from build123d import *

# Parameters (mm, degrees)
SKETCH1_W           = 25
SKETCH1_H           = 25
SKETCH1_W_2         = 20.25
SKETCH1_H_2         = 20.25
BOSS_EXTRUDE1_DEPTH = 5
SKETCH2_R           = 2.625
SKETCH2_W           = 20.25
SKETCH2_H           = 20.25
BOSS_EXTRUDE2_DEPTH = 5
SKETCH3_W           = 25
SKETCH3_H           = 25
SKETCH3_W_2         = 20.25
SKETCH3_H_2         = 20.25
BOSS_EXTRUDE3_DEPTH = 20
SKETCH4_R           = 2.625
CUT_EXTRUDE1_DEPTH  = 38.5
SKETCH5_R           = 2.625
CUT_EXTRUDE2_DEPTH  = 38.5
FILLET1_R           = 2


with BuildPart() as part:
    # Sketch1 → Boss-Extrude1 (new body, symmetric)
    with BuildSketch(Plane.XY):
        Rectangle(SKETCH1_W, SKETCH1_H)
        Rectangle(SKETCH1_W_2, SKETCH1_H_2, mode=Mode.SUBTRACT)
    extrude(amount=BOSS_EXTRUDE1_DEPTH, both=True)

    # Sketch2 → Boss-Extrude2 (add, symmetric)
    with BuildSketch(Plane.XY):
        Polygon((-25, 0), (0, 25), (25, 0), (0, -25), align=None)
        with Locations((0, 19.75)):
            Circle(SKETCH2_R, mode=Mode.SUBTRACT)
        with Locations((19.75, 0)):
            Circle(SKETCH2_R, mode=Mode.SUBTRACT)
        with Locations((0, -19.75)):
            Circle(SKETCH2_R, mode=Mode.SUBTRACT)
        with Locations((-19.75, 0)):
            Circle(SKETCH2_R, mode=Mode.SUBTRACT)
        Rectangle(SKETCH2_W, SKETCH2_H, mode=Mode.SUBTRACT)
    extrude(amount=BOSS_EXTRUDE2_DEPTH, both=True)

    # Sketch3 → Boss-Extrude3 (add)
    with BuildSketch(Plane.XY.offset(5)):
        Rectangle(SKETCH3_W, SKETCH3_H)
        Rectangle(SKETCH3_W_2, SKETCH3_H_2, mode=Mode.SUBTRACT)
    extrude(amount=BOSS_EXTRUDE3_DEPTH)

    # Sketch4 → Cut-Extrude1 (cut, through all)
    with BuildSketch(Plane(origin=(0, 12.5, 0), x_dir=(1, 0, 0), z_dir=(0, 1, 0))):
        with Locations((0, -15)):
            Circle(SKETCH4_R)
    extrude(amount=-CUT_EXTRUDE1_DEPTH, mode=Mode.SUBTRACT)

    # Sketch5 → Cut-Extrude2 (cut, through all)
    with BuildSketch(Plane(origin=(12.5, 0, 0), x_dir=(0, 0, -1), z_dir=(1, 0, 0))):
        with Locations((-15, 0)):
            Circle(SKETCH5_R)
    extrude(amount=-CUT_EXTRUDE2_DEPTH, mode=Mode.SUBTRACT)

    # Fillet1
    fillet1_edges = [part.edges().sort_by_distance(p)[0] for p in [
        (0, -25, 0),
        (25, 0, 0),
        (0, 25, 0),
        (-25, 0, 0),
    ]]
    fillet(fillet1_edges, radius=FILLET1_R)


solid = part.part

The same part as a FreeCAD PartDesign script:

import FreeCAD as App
import Part
import Sketcher
from FreeCAD import Vector
Q = App.Units.Quantity


def edges_at(feature, points):
    """Names of the edges that pass closest to the given points."""
    edges = feature.Shape.Edges
    near = lambda p: min(range(len(edges)), key=lambda i: edges[i].distToShape(Part.Vertex(*p))[0])
    return sorted({f"Edge{near(p) + 1}" for p in points})


def add_polygon(sketch, points):
    """Adds a closed chain of lines whose ends are joined by coincident constraints."""
    first, n = sketch.GeometryCount, len(points)
    for a, b in zip(points, points[1:] + points[:1]):
        sketch.addGeometry(Part.LineSegment(App.Vector(*a, 0), App.Vector(*b, 0)), False)
    for i in range(n):
        sketch.addConstraint(Sketcher.Constraint("Coincident", first + i, 2, first + (i + 1) % n, 1))

doc = App.newDocument("Part")
body = doc.addObject("PartDesign::Body", "Body")

sketch1 = doc.addObject("Sketcher::SketchObject", "Sketch")
body.addObject(sketch1)
sketch1.AttachmentSupport = (doc.XY_Plane, [""])
sketch1.MapMode = "FlatFace"
add_polygon(sketch1, [(-12, 12), (-12, -12), (12, -12), (12, 12)])
add_polygon(sketch1, [(10, -10), (-10, -10), (-10, 10), (10, 10)])
sketch1.addConstraint([
    Sketcher.Constraint("Vertical", 0),
    Sketcher.Constraint("Horizontal", 1),
    Sketcher.Constraint("Vertical", 2),
    Sketcher.Constraint("Horizontal", 3),
    Sketcher.Constraint("Horizontal", 4),
    Sketcher.Constraint("Vertical", 5),
    Sketcher.Constraint("Horizontal", 6),
    Sketcher.Constraint("Vertical", 7),
    Sketcher.Constraint("Symmetric", 0, 2, 2, 2, -1, 1),
    Sketcher.Constraint("Symmetric", 4, 2, 6, 2, -1, 1),
    Sketcher.Constraint("Equal", 3, 0),
    Sketcher.Constraint("Equal", 6, 5),
    Sketcher.Constraint("DistanceX", 1, 1, 1, 2, Q("25 mm")),
    Sketcher.Constraint("DistanceX", 4, 2, 4, 1, Q("20.25 mm")),
])
pad1 = doc.addObject("PartDesign::Pad", "Pad")
body.addObject(pad1)
pad1.Profile = sketch1
pad1.Length = 10
pad1.Midplane = True

sketch2 = doc.addObject("Sketcher::SketchObject", "Sketch001")
body.addObject(sketch2)
sketch2.AttachmentSupport = (doc.XY_Plane, [""])
sketch2.MapMode = "FlatFace"
add_polygon(sketch2, [(0, 25), (-25, 0), (0, -25), (25, 0)])
sketch2.addGeometry(Part.Circle(Vector(0, -19.8, 0), Vector(0, 0, 1), 2.6), False)
sketch2.addGeometry(Part.Circle(Vector(19.8, 0, 0), Vector(0, 0, 1), 2.6), False)
add_polygon(sketch2, [(-10.1, -10.1), (-10.1, 10.1), (10.1, 10.1), (10.1, -10.1)])
sketch2.addGeometry(Part.Circle(Vector(-19.8, 0, 0), Vector(0, 0, 1), 2.6), False)
sketch2.addGeometry(Part.Circle(Vector(0, 19.8, 0), Vector(0, 0, 1), 2.6), False)
sketch2.addConstraint([
    Sketcher.Constraint("Vertical", 6),
    Sketcher.Constraint("Horizontal", 7),
    Sketcher.Constraint("Vertical", 8),
    Sketcher.Constraint("Horizontal", 9),
    Sketcher.Constraint("Equal", 4, 5),
    Sketcher.Constraint("Equal", 5, 10),
    Sketcher.Constraint("Equal", 10, 11),
    Sketcher.Constraint("Symmetric", 5, 3, 10, 3, -1, 1),
    Sketcher.Constraint("Symmetric", 4, 3, 11, 3, -1, 1),
    Sketcher.Constraint("Symmetric", 0, 2, 2, 2, -1, 1),
    Sketcher.Constraint("Symmetric", 1, 2, 3, 2, -1, 1),
    Sketcher.Constraint("Symmetric", 6, 2, 8, 2, -1, 1),
    Sketcher.Constraint("PointOnObject", 4, 3, -2),
    Sketcher.Constraint("PointOnObject", 5, 3, -1),
    Sketcher.Constraint("PointOnObject", 0, 2, -1),
    Sketcher.Constraint("PointOnObject", 1, 2, -2),
    Sketcher.Constraint("Perpendicular", 0, 1),
    Sketcher.Constraint("Equal", 9, 6),
    Sketcher.Constraint("Diameter", 4, Q("5.25 mm")),
    Sketcher.Constraint("DistanceX", 0, 2, -1, 1, Q("25 mm")),
    Sketcher.Constraint("DistanceX", 7, 1, 7, 2, Q("20.25 mm")),
    Sketcher.Constraint("DistanceX", 10, 3, 5, 3, Q("39.5 mm")),
    Sketcher.Constraint("DistanceY", 4, 3, 11, 3, Q("39.5 mm")),
])
pad2 = doc.addObject("PartDesign::Pad", "Pad001")
body.addObject(pad2)
pad2.Profile = sketch2
pad2.Length = 10
pad2.Midplane = True

sketch3 = doc.addObject("Sketcher::SketchObject", "Sketch002")
body.addObject(sketch3)
sketch3.AttachmentSupport = (doc.XY_Plane, [""])
sketch3.MapMode = "FlatFace"
sketch3.AttachmentOffset = App.Placement(Vector(0, 0, 5), App.Rotation())
add_polygon(sketch3, [(-12, 12), (-12, -12), (12, -12), (12, 12)])
add_polygon(sketch3, [(10, -10), (-10, -10), (-10, 10), (10, 10)])
sketch3.addConstraint([
    Sketcher.Constraint("Vertical", 0),
    Sketcher.Constraint("Horizontal", 1),
    Sketcher.Constraint("Vertical", 2),
    Sketcher.Constraint("Horizontal", 3),
    Sketcher.Constraint("Horizontal", 4),
    Sketcher.Constraint("Vertical", 5),
    Sketcher.Constraint("Horizontal", 6),
    Sketcher.Constraint("Vertical", 7),
    Sketcher.Constraint("Symmetric", 0, 2, 2, 2, -1, 1),
    Sketcher.Constraint("Symmetric", 4, 2, 6, 2, -1, 1),
    Sketcher.Constraint("Equal", 3, 0),
    Sketcher.Constraint("Equal", 6, 5),
    Sketcher.Constraint("DistanceX", 1, 1, 1, 2, Q("25 mm")),
    Sketcher.Constraint("DistanceX", 4, 2, 4, 1, Q("20.25 mm")),
])
pad3 = doc.addObject("PartDesign::Pad", "Pad002")
body.addObject(pad3)
pad3.Profile = sketch3
pad3.Length = 20

sketch4 = doc.addObject("Sketcher::SketchObject", "Sketch003")
body.addObject(sketch4)
sketch4.AttachmentSupport = (doc.XZ_Plane, [""])
sketch4.MapMode = "FlatFace"
sketch4.AttachmentOffset = App.Placement(Vector(0, 0, -12.5), App.Rotation())
sketch4.addGeometry(Part.Circle(Vector(0, 15, 0), Vector(0, 0, 1), 2.6), False)
sketch4.addConstraint([
    Sketcher.Constraint("PointOnObject", 0, 3, -2),
    Sketcher.Constraint("Diameter", 0, Q("5.25 mm")),
    Sketcher.Constraint("DistanceY", -1, 1, 0, 3, Q("15 mm")),
])
pocket1 = doc.addObject("PartDesign::Pocket", "Pocket")
body.addObject(pocket1)
pocket1.Profile = sketch4
pocket1.Type = "ThroughAll"
pocket1.Reversed = True

sketch5 = doc.addObject("Sketcher::SketchObject", "Sketch004")
body.addObject(sketch5)
sketch5.AttachmentSupport = (doc.YZ_Plane, [""])
sketch5.MapMode = "FlatFace"
sketch5.AttachmentOffset = App.Placement(Vector(0, 0, 12.5), App.Rotation())
sketch5.addGeometry(Part.Circle(Vector(0, 15, 0), Vector(0, 0, 1), 2.6), False)
sketch5.addConstraint([
    Sketcher.Constraint("PointOnObject", 0, 3, -2),
    Sketcher.Constraint("Diameter", 0, Q("5.25 mm")),
    Sketcher.Constraint("DistanceY", -1, 1, 0, 3, Q("15 mm")),
])
pocket2 = doc.addObject("PartDesign::Pocket", "Pocket001")
body.addObject(pocket2)
pocket2.Profile = sketch5
pocket2.Type = "ThroughAll"
doc.recompute()

fillet = doc.addObject("PartDesign::Fillet", "Fillet")
body.addObject(fillet)
fillet.Base = (pocket2, edges_at(pocket2, [
    (0, -25, 0),
    (25, 0, 0),
    (0, 25, 0),
    (-25, 0, 0),
]))
fillet.Radius = 2

doc.recompute()
